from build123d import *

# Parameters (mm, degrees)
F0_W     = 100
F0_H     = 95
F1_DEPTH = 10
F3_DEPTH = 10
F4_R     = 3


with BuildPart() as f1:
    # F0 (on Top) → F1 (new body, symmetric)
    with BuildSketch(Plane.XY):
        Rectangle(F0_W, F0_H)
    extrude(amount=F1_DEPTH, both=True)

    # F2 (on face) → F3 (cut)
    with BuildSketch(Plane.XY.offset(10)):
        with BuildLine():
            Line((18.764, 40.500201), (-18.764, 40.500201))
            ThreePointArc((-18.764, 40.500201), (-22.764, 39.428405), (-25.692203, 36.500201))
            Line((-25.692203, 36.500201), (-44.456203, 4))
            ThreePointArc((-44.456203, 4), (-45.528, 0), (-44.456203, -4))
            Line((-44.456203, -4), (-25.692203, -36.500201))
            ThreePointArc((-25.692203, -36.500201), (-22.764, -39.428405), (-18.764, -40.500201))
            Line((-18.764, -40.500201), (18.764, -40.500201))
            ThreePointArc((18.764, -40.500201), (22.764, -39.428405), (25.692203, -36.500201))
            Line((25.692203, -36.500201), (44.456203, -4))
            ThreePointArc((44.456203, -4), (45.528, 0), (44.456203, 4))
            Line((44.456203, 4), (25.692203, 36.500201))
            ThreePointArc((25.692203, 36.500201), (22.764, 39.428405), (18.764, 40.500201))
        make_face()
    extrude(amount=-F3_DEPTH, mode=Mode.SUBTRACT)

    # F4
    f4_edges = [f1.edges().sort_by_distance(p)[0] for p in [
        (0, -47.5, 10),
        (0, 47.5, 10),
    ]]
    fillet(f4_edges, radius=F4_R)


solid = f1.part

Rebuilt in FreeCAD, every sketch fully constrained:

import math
import FreeCAD as App
import Part
import Sketcher
Q = App.Units.Quantity


def edges_at(feature, points):
    """Names of the edges that pass closest to the given points."""
    edges = feature.Shape.Edges
    near = lambda p: min(range(len(edges)), key=lambda i: edges[i].distToShape(Part.Vertex(*p))[0])
    return sorted({f"Edge{near(p) + 1}" for p in points})

doc = App.newDocument("Part")
body = doc.addObject("PartDesign::Body", "Body")

sketch1 = body.newObject("Sketcher::SketchObject", "Sketch")
sketch1.AttachmentSupport = (doc.getObject("XY_Plane"), [""])
sketch1.MapMode = "FlatFace"
sketch1.addGeometry([
    Part.LineSegment(App.Vector(-50, 47.5, 0), App.Vector(-50, -47.5, 0)),
    Part.LineSegment(App.Vector(-50, -47.5, 0), App.Vector(50, -47.5, 0)),
    Part.LineSegment(App.Vector(50, -47.5, 0), App.Vector(50, 47.5, 0)),
    Part.LineSegment(App.Vector(50, 47.5, 0), App.Vector(-50, 47.5, 0)),
], False)
sketch1.addConstraint([
    Sketcher.Constraint("Coincident", 0, 2, 1, 1),
    Sketcher.Constraint("Coincident", 1, 2, 2, 1),
    Sketcher.Constraint("Coincident", 2, 2, 3, 1),
    Sketcher.Constraint("Coincident", 3, 2, 0, 1),
    Sketcher.Constraint("Vertical", 0),
    Sketcher.Constraint("Horizontal", 1),
    Sketcher.Constraint("Vertical", 2),
    Sketcher.Constraint("Horizontal", 3),
    Sketcher.Constraint("Symmetric", 0, 2, 2, 2, -1, 1),
    Sketcher.Constraint("DistanceX", 1, 1, 1, 2, Q("100 mm")),
    Sketcher.Constraint("DistanceY", 0, 2, 0, 1, Q("95 mm")),
])
pad1 = body.newObject("PartDesign::Pad", "Pad")
pad1.Profile = sketch1
pad1.Length = 20
pad1.Midplane = True

sketch2 = body.newObject("Sketcher::SketchObject", "Sketch001")
sketch2.AttachmentSupport = (doc.getObject("XY_Plane"), [""])
sketch2.MapMode = "FlatFace"
sketch2.AttachmentOffset = App.Placement(App.Vector(0, 0, 10), App.Rotation())
sketch2.addGeometry([
    Part.LineSegment(App.Vector(18.764, 40.500201, 0), App.Vector(-18.764, 40.500201, 0)),
    Part.ArcOfCircle(Part.Circle(App.Vector(-18.764003, 32.500206, 0), App.Vector(0, 0, 1), 7.999995), math.radians(89.999981), math.radians(150.000021)),
    Part.LineSegment(App.Vector(-25.692203, 36.500201, 0), App.Vector(-44.456203, 4, 0)),
    Part.ArcOfCircle(Part.Circle(App.Vector(-37.528001, 0, 0), App.Vector(0, 0, 1), 7.999999), math.radians(149.999994), math.radians(210.000006)),
    Part.LineSegment(App.Vector(-44.456203, -4, 0), App.Vector(-25.692203, -36.500201, 0)),
    Part.ArcOfCircle(Part.Circle(App.Vector(-18.764003, -32.500206, 0), App.Vector(0, 0, 1), 7.999995), math.radians(-150.000021), math.radians(-89.999981)),
    Part.LineSegment(App.Vector(-18.764, -40.500201, 0), App.Vector(18.764, -40.500201, 0)),
    Part.ArcOfCircle(Part.Circle(App.Vector(18.764003, -32.500206, 0), App.Vector(0, 0, 1), 7.999995), math.radians(-90.000019), math.radians(-29.999979)),
    Part.LineSegment(App.Vector(25.692203, -36.500201, 0), App.Vector(44.456203, -4, 0)),
    Part.ArcOfCircle(Part.Circle(App.Vector(37.528001, 0, 0), App.Vector(0, 0, 1), 7.999999), math.radians(-30.000006), math.radians(30.000006)),
    Part.LineSegment(App.Vector(44.456203, 4, 0), App.Vector(25.692203, 36.500201, 0)),
    Part.ArcOfCircle(Part.Circle(App.Vector(18.764003, 32.500206, 0), App.Vector(0, 0, 1), 7.999995), math.radians(29.999979), math.radians(90.000019)),
], False)
sketch2.addConstraint([
    Sketcher.Constraint("Tangent", 0, 2, 1, 1),
    Sketcher.Constraint("Tangent", 1, 2, 2, 1),
    Sketcher.Constraint("Tangent", 2, 2, 3, 1),
    Sketcher.Constraint("Tangent", 3, 2, 4, 1),
    Sketcher.Constraint("Tangent", 4, 2, 5, 1),
    Sketcher.Constraint("Tangent", 5, 2, 6, 1),
    Sketcher.Constraint("Tangent", 6, 2, 7, 1),
    Sketcher.Constraint("Tangent", 7, 2, 8, 1),
    Sketcher.Constraint("Tangent", 8, 2, 9, 1),
    Sketcher.Constraint("Tangent", 9, 2, 10, 1),
    Sketcher.Constraint("Tangent", 10, 2, 11, 1),
    Sketcher.Constraint("Tangent", 11, 2, 0, 1),
    Sketcher.Constraint("Horizontal", 0),
    Sketcher.Constraint("Horizontal", 6),
    Sketcher.Constraint("Equal", 1, 5),
    Sketcher.Constraint("Equal", 5, 7),
    Sketcher.Constraint("Equal", 3, 9),
    Sketcher.Constraint("Equal", 7, 11),
    Sketcher.Constraint("Symmetric", 1, 3, 7, 3, -1, 1),
    Sketcher.Constraint("Symmetric", 3, 3, 9, 3, -1, 1),
    Sketcher.Constraint("Symmetric", 4, 2, 7, 2, -2),
    Sketcher.Constraint("Parallel", 4, 10),
    Sketcher.Constraint("Radius", 3, Q("7.999999 mm")),
    Sketcher.Constraint("Angle", 2, Q("-120 deg")),
    Sketcher.Constraint("DistanceY", 1, 2, 0, 2, Q("4 mm")),
    Sketcher.Constraint("DistanceX", 0, 2, 0, 1, Q("37.528 mm")),
    Sketcher.Constraint("Distance", 2, Q("37.528 mm")),
])
pocket1 = body.newObject("PartDesign::Pocket", "Pocket")
pocket1.Profile = sketch2
pocket1.Length = 10
doc.recompute()

fillet = body.newObject("PartDesign::Fillet", "Fillet")
fillet.Base = (pocket1, edges_at(pocket1, [(0, -47.5, 10), (0, 47.5, 10)]))
fillet.Radius = 3

doc.recompute()
